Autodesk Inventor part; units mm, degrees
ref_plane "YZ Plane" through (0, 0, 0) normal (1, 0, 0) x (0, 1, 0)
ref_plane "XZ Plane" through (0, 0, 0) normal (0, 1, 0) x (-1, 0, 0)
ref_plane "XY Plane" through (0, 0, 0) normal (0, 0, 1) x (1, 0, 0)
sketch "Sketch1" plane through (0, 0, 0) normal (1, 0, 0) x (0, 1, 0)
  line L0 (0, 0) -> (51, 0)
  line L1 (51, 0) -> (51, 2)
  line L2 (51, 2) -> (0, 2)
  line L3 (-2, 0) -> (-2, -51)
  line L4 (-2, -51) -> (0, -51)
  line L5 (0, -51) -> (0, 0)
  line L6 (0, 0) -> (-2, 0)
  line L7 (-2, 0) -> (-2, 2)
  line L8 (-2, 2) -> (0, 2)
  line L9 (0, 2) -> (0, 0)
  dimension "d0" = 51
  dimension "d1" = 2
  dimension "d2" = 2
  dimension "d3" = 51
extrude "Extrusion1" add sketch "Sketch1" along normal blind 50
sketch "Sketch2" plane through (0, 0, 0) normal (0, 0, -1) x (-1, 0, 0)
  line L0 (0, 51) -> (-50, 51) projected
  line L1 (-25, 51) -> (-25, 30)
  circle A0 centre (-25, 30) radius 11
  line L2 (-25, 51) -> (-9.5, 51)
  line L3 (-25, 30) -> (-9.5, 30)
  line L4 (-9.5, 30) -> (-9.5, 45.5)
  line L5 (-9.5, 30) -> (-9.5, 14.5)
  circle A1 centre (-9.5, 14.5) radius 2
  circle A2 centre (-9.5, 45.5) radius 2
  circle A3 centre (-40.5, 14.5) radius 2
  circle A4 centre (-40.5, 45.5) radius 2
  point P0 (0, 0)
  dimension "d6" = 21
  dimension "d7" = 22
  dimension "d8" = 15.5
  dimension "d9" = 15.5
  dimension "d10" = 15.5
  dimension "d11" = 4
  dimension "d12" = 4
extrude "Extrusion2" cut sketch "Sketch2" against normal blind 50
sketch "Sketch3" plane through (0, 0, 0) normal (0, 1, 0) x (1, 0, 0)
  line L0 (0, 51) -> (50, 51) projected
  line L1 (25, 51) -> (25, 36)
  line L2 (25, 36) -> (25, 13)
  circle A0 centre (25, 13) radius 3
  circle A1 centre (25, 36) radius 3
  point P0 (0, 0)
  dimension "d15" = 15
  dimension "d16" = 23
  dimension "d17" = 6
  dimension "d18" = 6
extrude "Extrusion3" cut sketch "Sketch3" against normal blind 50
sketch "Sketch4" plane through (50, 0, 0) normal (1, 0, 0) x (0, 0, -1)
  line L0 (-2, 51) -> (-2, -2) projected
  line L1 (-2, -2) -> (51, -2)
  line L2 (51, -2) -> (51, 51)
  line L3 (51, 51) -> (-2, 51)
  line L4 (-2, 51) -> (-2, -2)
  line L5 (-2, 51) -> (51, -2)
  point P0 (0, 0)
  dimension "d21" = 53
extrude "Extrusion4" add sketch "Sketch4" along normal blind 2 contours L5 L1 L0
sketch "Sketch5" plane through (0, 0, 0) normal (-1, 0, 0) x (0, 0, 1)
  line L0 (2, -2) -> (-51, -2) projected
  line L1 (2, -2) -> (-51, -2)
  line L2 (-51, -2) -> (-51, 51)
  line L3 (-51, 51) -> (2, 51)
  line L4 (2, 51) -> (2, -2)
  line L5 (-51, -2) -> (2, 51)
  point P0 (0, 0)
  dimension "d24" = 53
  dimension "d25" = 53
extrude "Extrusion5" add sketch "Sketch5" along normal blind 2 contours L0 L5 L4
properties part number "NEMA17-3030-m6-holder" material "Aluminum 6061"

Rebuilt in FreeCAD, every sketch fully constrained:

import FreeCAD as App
import Part
import Sketcher

V = App.Vector


def add_polygon(sketch, points):
    """Adds a closed chain of lines whose ends are joined by coincident constraints."""
    first, n = sketch.GeometryCount, len(points)
    for a, b in zip(points, points[1:] + points[:1]):
        sketch.addGeometry(Part.LineSegment(App.Vector(*a, 0), App.Vector(*b, 0)), False)
    for i in range(n):
        sketch.addConstraint(Sketcher.Constraint("Coincident", first + i, 2, first + (i + 1) % n, 1))

doc = App.newDocument("Part")
body = doc.addObject("PartDesign::Body", "Body")

# Sketch on YZ plane
sketch1 = doc.addObject("Sketcher::SketchObject", "Sketch")
body.addObject(sketch1)
sketch1.AttachmentSupport = (doc.YZ_Plane, [""])
sketch1.MapMode = "FlatFace"
add_polygon(sketch1, [(51, 2), (-2, 2), (-2, -51), (0, -51), (0, 0), (51, 0)])  # lines 0-5
sketch1.addConstraint(Sketcher.Constraint("Horizontal", 0))
sketch1.addConstraint(Sketcher.Constraint("Vertical", 1))
sketch1.addConstraint(Sketcher.Constraint("Horizontal", 2))
sketch1.addConstraint(Sketcher.Constraint("Vertical", 3))
sketch1.addConstraint(Sketcher.Constraint("Horizontal", 4))
sketch1.addConstraint(Sketcher.Constraint("Vertical", 5))
sketch1.addConstraint(Sketcher.Constraint("Coincident", 3, 2, -1, 1))
sketch1.addConstraint(Sketcher.Constraint("Equal", 0, 1))
sketch1.addConstraint(Sketcher.Constraint("Equal", 4, 3))
sketch1.addConstraint(Sketcher.Constraint("DistanceX", 2, 1, 2, 2, 2.0))
sketch1.addConstraint(Sketcher.Constraint("DistanceX", 4, 1, 4, 2, 51.0))
pad1 = doc.addObject("PartDesign::Pad", "Pad")
body.addObject(pad1)
pad1.Profile = sketch1
pad1.Length = 50

# Sketch on XY plane
sketch2 = doc.addObject("Sketcher::SketchObject", "Sketch001")
body.addObject(sketch2)
sketch2.AttachmentSupport = (doc.XY_Plane, [""])
sketch2.MapMode = "FlatFace"
sketch2.addGeometry(Part.Circle(V(25, 30, 0), V(0, 0, 1), 11), False)
sketch2.addGeometry(Part.Circle(V(9.5, 45.5, 0), V(0, 0, 1), 2), False)
sketch2.addGeometry(Part.Circle(V(9.5, 14.5, 0), V(0, 0, 1), 2), False)
sketch2.addGeometry(Part.Circle(V(40.5, 14.5, 0), V(0, 0, 1), 2), False)
sketch2.addGeometry(Part.Circle(V(40.5, 45.5, 0), V(0, 0, 1), 2), False)
sketch2.addConstraint(Sketcher.Constraint("Equal", 1, 2))
sketch2.addConstraint(Sketcher.Constraint("Equal", 2, 3))
sketch2.addConstraint(Sketcher.Constraint("Equal", 3, 4))
sketch2.addConstraint(Sketcher.Constraint("Horizontal", 2, 3, 3, 3))
sketch2.addConstraint(Sketcher.Constraint("Horizontal", 1, 3, 4, 3))
sketch2.addConstraint(Sketcher.Constraint("Vertical", 1, 3, 2, 3))
sketch2.addConstraint(Sketcher.Constraint("Vertical", 3, 3, 4, 3))
sketch2.addConstraint(Sketcher.Constraint("Diameter", 0, 22.0))
sketch2.addConstraint(Sketcher.Constraint("Diameter", 1, 4.0))
sketch2.addConstraint(Sketcher.Constraint("DistanceX", 1, 3, 0, 3, 15.5))
sketch2.addConstraint(Sketcher.Constraint("DistanceY", 0, 3, 1, 3, 15.5))
sketch2.addConstraint(Sketcher.Constraint("DistanceY", 2, 3, 0, 3, 15.5))
sketch2.addConstraint(Sketcher.Constraint("DistanceX", 0, 3, 3, 3, 15.5))
sketch2.addConstraint(Sketcher.Constraint("DistanceX", -1, 1, 0, 3, 25.0))
sketch2.addConstraint(Sketcher.Constraint("DistanceY", -1, 1, 0, 3, 30.0))
pocket1 = doc.addObject("PartDesign::Pocket", "Pocket")
body.addObject(pocket1)
pocket1.Profile = sketch2
pocket1.Length = 50
pocket1.Reversed = True

# Sketch on XZ plane
sketch3 = doc.addObject("Sketcher::SketchObject", "Sketch002")
body.addObject(sketch3)
sketch3.AttachmentSupport = (doc.XZ_Plane, [""])
sketch3.MapMode = "FlatFace"
sketch3.addGeometry(Part.Circle(V(25, -36, 0), V(0, 0, 1), 3), False)
sketch3.addGeometry(Part.Circle(V(25, -13, 0), V(0, 0, 1), 3), False)
sketch3.addConstraint(Sketcher.Constraint("Equal", 0, 1))
sketch3.addConstraint(Sketcher.Constraint("Vertical", 0, 3, 1, 3))
sketch3.addConstraint(Sketcher.Constraint("Diameter", 0, 6.0))
sketch3.addConstraint(Sketcher.Constraint("DistanceY", 0, 3, 1, 3, 23.0))
sketch3.addConstraint(Sketcher.Constraint("DistanceX", -1, 1, 0, 3, 25.0))
sketch3.addConstraint(Sketcher.Constraint("DistanceY", 0, 3, -1, 1, 36.0))
pocket2 = doc.addObject("PartDesign::Pocket", "Pocket001")
body.addObject(pocket2)
pocket2.Profile = sketch3
pocket2.Length = 50
pocket2.Reversed = True

# Sketch on YZ plane
sketch4 = doc.addObject("Sketcher::SketchObject", "Sketch003")
body.addObject(sketch4)
sketch4.AttachmentSupport = (doc.YZ_Plane, [""])
sketch4.MapMode = "FlatFace"
sketch4.AttachmentOffset = App.Placement(V(0, 0, 50), App.Rotation())
add_polygon(sketch4, [(-2, -51), (51, 2), (-2, 2)])  # lines 0-2
sketch4.addConstraint(Sketcher.Constraint("Horizontal", 1))
sketch4.addConstraint(Sketcher.Constraint("Vertical", 2))
sketch4.addConstraint(Sketcher.Constraint("Equal", 1, 2))
sketch4.addConstraint(Sketcher.Constraint("DistanceX", 1, 2, 1, 1, 53.0))
sketch4.addConstraint(Sketcher.Constraint("DistanceX", -1, 1, 0, 2, 51.0))
sketch4.addConstraint(Sketcher.Constraint("DistanceY", -1, 1, 0, 2, 2.0))
pad2 = doc.addObject("PartDesign::Pad", "Pad001")
body.addObject(pad2)
pad2.Profile = sketch4
pad2.Length = 2

# Sketch on YZ plane
sketch5 = doc.addObject("Sketcher::SketchObject", "Sketch004")
body.addObject(sketch5)
sketch5.AttachmentSupport = (doc.YZ_Plane, [""])
sketch5.MapMode = "FlatFace"
add_polygon(sketch5, [(-2, -51), (-2, 2), (51, 2)])  # lines 0-2
sketch5.addConstraint(Sketcher.Constraint("Vertical", 0))
sketch5.addConstraint(Sketcher.Constraint("Horizontal", 1))
sketch5.addConstraint(Sketcher.Constraint("Equal", 1, 0))
sketch5.addConstraint(Sketcher.Constraint("DistanceX", 1, 1, 1, 2, 53.0))
sketch5.addConstraint(Sketcher.Constraint("DistanceX", 0, 2, -1, 1, 2.0))
sketch5.addConstraint(Sketcher.Constraint("DistanceY", -1, 1, 0, 2, 2.0))
pad3 = doc.addObject("PartDesign::Pad", "Pad002")
body.addObject(pad3)
pad3.Profile = sketch5
pad3.Length = 2
pad3.Reversed = True

doc.recompute()
